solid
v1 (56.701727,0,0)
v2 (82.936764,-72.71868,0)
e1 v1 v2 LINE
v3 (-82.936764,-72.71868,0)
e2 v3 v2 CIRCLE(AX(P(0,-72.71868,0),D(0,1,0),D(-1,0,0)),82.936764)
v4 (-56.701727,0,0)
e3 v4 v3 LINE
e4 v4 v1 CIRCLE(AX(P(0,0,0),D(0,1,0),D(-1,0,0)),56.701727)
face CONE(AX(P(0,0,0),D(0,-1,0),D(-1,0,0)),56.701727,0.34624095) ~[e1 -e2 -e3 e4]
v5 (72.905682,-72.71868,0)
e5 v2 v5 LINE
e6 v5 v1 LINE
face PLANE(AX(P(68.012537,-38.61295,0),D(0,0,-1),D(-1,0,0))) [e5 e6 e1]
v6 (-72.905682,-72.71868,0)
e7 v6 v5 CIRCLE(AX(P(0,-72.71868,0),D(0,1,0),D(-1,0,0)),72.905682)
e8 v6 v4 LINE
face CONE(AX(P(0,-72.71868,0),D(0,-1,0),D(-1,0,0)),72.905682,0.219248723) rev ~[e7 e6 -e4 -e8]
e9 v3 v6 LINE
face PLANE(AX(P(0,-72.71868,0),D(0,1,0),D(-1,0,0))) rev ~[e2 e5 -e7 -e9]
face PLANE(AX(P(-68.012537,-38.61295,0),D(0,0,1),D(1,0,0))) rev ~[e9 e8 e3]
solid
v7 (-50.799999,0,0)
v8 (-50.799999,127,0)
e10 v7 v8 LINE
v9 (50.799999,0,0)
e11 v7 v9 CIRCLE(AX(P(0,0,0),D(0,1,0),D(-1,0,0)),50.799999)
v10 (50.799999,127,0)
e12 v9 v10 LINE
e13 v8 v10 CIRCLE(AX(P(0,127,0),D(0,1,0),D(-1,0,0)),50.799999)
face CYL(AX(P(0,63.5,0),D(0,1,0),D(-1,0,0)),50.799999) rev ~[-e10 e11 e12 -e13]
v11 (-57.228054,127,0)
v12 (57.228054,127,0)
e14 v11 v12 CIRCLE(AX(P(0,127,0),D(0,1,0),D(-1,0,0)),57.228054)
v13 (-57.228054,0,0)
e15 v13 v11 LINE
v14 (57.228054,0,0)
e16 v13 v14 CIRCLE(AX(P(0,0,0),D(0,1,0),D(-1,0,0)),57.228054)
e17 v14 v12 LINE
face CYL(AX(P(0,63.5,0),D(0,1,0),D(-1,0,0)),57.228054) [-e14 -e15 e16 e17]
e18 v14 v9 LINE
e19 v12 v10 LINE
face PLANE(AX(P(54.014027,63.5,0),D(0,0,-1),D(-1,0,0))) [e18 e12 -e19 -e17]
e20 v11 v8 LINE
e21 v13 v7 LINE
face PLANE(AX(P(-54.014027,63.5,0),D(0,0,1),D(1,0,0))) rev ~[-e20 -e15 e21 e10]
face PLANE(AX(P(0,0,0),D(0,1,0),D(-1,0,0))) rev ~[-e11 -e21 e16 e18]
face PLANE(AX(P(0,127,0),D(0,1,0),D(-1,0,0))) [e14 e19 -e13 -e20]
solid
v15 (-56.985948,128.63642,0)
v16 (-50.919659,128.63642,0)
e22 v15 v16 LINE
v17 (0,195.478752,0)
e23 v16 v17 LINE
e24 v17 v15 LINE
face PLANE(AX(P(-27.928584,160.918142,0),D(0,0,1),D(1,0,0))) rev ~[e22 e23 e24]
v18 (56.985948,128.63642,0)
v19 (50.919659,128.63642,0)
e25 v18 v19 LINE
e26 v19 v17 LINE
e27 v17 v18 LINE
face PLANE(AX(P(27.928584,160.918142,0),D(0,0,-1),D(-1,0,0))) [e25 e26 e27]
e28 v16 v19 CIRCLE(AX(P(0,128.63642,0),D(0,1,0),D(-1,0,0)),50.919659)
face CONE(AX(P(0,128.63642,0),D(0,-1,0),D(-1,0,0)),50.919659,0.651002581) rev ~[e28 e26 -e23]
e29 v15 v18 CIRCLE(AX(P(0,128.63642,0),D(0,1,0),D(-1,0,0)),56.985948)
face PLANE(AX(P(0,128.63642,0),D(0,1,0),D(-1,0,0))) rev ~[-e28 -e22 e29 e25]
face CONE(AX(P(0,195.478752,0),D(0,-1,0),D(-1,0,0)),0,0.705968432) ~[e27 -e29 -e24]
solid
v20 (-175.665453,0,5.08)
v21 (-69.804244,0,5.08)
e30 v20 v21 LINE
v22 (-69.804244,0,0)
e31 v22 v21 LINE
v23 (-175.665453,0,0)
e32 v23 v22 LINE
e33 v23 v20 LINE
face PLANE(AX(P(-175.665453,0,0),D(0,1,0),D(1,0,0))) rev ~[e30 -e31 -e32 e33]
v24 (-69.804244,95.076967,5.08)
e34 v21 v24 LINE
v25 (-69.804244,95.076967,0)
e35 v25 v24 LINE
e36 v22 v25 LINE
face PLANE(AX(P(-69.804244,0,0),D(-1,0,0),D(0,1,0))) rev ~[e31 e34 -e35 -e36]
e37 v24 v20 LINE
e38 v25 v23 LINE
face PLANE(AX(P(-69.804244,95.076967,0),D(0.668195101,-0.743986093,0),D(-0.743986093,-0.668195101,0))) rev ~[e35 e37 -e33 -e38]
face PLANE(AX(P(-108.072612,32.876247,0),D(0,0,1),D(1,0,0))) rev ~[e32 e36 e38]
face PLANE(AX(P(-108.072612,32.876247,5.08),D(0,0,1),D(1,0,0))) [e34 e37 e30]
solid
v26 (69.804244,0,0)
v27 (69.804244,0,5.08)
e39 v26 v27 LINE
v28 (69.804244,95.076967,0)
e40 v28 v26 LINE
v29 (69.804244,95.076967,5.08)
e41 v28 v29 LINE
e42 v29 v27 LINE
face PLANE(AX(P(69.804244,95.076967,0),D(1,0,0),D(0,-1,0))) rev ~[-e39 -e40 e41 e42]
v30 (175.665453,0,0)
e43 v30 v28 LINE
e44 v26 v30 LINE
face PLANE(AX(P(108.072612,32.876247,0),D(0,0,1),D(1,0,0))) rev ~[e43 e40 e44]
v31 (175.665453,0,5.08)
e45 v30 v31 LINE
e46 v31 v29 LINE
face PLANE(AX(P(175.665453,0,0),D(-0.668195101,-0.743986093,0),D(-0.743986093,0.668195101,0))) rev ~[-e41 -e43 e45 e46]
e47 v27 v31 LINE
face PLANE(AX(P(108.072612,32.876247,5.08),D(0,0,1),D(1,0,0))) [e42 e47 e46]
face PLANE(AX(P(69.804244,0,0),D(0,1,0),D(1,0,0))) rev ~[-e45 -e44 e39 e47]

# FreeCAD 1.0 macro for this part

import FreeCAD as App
import Part
import Sketcher
from FreeCAD import Vector
Q = App.Units.Quantity

doc = App.newDocument("Part")
params = doc.addObject("Spreadsheet::Sheet", "Params")
for row, (alias, value) in enumerate([
    ("sketch1_height", "5 in"),
    ("revolution_angle", "180 deg"),
    ("revolution2_angle", "180 deg"),
    ("revolution3_angle", "180 deg"),
    ("pad1_length", "0.2 in"),
], start=1):
    params.set(f"A{row}", alias)
    params.set(f"B{row}", "=" + value)
    params.setAlias(f"B{row}", alias)

body = doc.addObject("PartDesign::Body", "Body")

sketch1 = body.newObject("Sketcher::SketchObject", "Sketch")
sketch1.AttachmentSupport = (doc.getObject("XY_Plane"), [""])
sketch1.MapMode = "FlatFace"
sketch1.addGeometry([
    Part.LineSegment(Vector(-57.228054, 127, 0), Vector(-57.228054, 0, 0)),
    Part.LineSegment(Vector(-57.228054, 0, 0), Vector(-50.799999, 0, 0)),
    Part.LineSegment(Vector(-50.799999, 0, 0), Vector(-50.799999, 127, 0)),
    Part.LineSegment(Vector(-50.799999, 127, 0), Vector(-57.228054, 127, 0)),
], False)
sketch1.addConstraint([
    Sketcher.Constraint("Coincident", 0, 2, 1, 1),
    Sketcher.Constraint("Coincident", 1, 2, 2, 1),
    Sketcher.Constraint("Coincident", 2, 2, 3, 1),
    Sketcher.Constraint("Coincident", 3, 2, 0, 1),
    Sketcher.Constraint("Vertical", 0),
    Sketcher.Constraint("Horizontal", 1),
    Sketcher.Constraint("Vertical", 2),
    Sketcher.Constraint("Horizontal", 3),
    Sketcher.Constraint("PointOnObject", 0, 2, -1),
    Sketcher.Constraint("DistanceY", 0, 2, 0, 1, Q("5 in")),
    Sketcher.Constraint("DistanceX", 1, 2, -1, 1, Q("2 in")),
    Sketcher.Constraint("DistanceX", 1, 1, 1, 2, 6.428055),
])
sketch1.setExpression("Constraints[9]", "Params.sketch1_height")
revolution = body.newObject("PartDesign::Revolution", "Revolution")
revolution.Profile = sketch1
revolution.ReferenceAxis = (sketch1, ["V_Axis"])
revolution.setExpression("Angle", "Params.revolution_angle")
body2 = doc.addObject("PartDesign::Body", "Body001")

sketch2 = body2.newObject("Sketcher::SketchObject", "Sketch001")
sketch2.AttachmentSupport = (doc.getObject("XY_Plane001"), [""])
sketch2.MapMode = "FlatFace"
sketch2.addGeometry([
    Part.LineSegment(Vector(0, 195.478752, 0), Vector(-56.985948, 128.63642, 0)),
    Part.LineSegment(Vector(-56.985948, 128.63642, 0), Vector(-50.919659, 128.63642, 0)),
    Part.LineSegment(Vector(-50.919659, 128.63642, 0), Vector(0, 195.478752, 0)),
], False)
sketch2.addConstraint([
    Sketcher.Constraint("Coincident", 0, 2, 1, 1),
    Sketcher.Constraint("Coincident", 1, 2, 2, 1),
    Sketcher.Constraint("Coincident", 2, 2, 0, 1),
    Sketcher.Constraint("Horizontal", 1),
    Sketcher.Constraint("PointOnObject", 2, 2, -2),
    Sketcher.Constraint("DistanceX", 1, 1, 1, 2, 6.066289),
    Sketcher.Constraint("DistanceY", -1, 1, 0, 2, 128.63642),
    Sketcher.Constraint("DistanceX", 1, 2, -1, 1, 50.919659),
    Sketcher.Constraint("DistanceY", -1, 1, 2, 2, 195.478752),
])
revolution2 = body2.newObject("PartDesign::Revolution", "Revolution001")
revolution2.Profile = sketch2
revolution2.ReferenceAxis = (sketch2, ["V_Axis"])
revolution2.setExpression("Angle", "Params.revolution2_angle")
body3 = doc.addObject("PartDesign::Body", "Body002")

sketch3 = body3.newObject("Sketcher::SketchObject", "Sketch002")
sketch3.AttachmentSupport = (doc.getObject("XY_Plane002"), [""])
sketch3.MapMode = "FlatFace"
sketch3.addGeometry([
    Part.LineSegment(Vector(-72.905682, -72.71868, 0), Vector(-56.701727, 0, 0)),
    Part.LineSegment(Vector(-56.701727, 0, 0), Vector(-82.936764, -72.71868, 0)),
    Part.LineSegment(Vector(-82.936764, -72.71868, 0), Vector(-72.905682, -72.71868, 0)),
], False)
sketch3.addConstraint([
    Sketcher.Constraint("Coincident", 0, 2, 1, 1),
    Sketcher.Constraint("Coincident", 1, 2, 2, 1),
    Sketcher.Constraint("Coincident", 2, 2, 0, 1),
    Sketcher.Constraint("Horizontal", 2),
    Sketcher.Constraint("PointOnObject", 0, 2, -1),
    Sketcher.Constraint("DistanceX", 2, 1, 2, 2, 10.031082),
    Sketcher.Constraint("Distance", 0, 74.502178),
    Sketcher.Constraint("DistanceY", 1, 2, -1, 1, 72.71868),
    Sketcher.Constraint("DistanceX", 2, 2, -1, 1, 72.905682),
])
revolution3 = body3.newObject("PartDesign::Revolution", "Revolution002")
revolution3.Profile = sketch3
revolution3.ReferenceAxis = (sketch3, ["V_Axis"])
revolution3.setExpression("Angle", "Params.revolution3_angle")
body4 = doc.addObject("PartDesign::Body", "Body003")
body4.AllowCompound = True

sketch4 = body4.newObject("Sketcher::SketchObject", "Sketch003")
sketch4.AttachmentSupport = (doc.getObject("XY_Plane003"), [""])
sketch4.MapMode = "FlatFace"
sketch4.addGeometry([
    Part.LineSegment(Vector(-175.665453, 0, 0), Vector(-69.804244, 0, 0)),
    Part.LineSegment(Vector(-69.804244, 0, 0), Vector(-69.804244, 95.076967, 0)),
    Part.LineSegment(Vector(-69.804244, 95.076967, 0), Vector(-175.665453, 0, 0)),
    Part.LineSegment(Vector(69.804244, 95.076967, 0), Vector(69.804244, 0, 0)),
    Part.LineSegment(Vector(69.804244, 0, 0), Vector(175.665453, 0, 0)),
    Part.LineSegment(Vector(175.665453, 0, 0), Vector(69.804244, 95.076967, 0)),
], False)
sketch4.addConstraint([
    Sketcher.Constraint("Coincident", 0, 2, 1, 1),
    Sketcher.Constraint("Coincident", 1, 2, 2, 1),
    Sketcher.Constraint("Coincident", 2, 2, 0, 1),
    Sketcher.Constraint("Coincident", 3, 2, 4, 1),
    Sketcher.Constraint("Coincident", 4, 2, 5, 1),
    Sketcher.Constraint("Coincident", 5, 2, 3, 1),
    Sketcher.Constraint("Horizontal", 0),
    Sketcher.Constraint("Vertical", 1),
    Sketcher.Constraint("Vertical", 3),
    Sketcher.Constraint("Horizontal", 4),
    Sketcher.Constraint("Symmetric", 0, 2, 3, 2, -1, 1),
    Sketcher.Constraint("Symmetric", 2, 2, 4, 2, -2),
    Sketcher.Constraint("Horizontal", 1, 2, 5, 2),
    Sketcher.Constraint("DistanceX", 0, 1, 0, 2, 105.861209),
    Sketcher.Constraint("Distance", 2, 142.289231),
    Sketcher.Constraint("DistanceX", 0, 2, 3, 2, 139.608488),
])
pad1 = body4.newObject("PartDesign::Pad", "Pad")
pad1.Profile = sketch4
pad1.setExpression("Length", "Params.pad1_length")

doc.recompute()
